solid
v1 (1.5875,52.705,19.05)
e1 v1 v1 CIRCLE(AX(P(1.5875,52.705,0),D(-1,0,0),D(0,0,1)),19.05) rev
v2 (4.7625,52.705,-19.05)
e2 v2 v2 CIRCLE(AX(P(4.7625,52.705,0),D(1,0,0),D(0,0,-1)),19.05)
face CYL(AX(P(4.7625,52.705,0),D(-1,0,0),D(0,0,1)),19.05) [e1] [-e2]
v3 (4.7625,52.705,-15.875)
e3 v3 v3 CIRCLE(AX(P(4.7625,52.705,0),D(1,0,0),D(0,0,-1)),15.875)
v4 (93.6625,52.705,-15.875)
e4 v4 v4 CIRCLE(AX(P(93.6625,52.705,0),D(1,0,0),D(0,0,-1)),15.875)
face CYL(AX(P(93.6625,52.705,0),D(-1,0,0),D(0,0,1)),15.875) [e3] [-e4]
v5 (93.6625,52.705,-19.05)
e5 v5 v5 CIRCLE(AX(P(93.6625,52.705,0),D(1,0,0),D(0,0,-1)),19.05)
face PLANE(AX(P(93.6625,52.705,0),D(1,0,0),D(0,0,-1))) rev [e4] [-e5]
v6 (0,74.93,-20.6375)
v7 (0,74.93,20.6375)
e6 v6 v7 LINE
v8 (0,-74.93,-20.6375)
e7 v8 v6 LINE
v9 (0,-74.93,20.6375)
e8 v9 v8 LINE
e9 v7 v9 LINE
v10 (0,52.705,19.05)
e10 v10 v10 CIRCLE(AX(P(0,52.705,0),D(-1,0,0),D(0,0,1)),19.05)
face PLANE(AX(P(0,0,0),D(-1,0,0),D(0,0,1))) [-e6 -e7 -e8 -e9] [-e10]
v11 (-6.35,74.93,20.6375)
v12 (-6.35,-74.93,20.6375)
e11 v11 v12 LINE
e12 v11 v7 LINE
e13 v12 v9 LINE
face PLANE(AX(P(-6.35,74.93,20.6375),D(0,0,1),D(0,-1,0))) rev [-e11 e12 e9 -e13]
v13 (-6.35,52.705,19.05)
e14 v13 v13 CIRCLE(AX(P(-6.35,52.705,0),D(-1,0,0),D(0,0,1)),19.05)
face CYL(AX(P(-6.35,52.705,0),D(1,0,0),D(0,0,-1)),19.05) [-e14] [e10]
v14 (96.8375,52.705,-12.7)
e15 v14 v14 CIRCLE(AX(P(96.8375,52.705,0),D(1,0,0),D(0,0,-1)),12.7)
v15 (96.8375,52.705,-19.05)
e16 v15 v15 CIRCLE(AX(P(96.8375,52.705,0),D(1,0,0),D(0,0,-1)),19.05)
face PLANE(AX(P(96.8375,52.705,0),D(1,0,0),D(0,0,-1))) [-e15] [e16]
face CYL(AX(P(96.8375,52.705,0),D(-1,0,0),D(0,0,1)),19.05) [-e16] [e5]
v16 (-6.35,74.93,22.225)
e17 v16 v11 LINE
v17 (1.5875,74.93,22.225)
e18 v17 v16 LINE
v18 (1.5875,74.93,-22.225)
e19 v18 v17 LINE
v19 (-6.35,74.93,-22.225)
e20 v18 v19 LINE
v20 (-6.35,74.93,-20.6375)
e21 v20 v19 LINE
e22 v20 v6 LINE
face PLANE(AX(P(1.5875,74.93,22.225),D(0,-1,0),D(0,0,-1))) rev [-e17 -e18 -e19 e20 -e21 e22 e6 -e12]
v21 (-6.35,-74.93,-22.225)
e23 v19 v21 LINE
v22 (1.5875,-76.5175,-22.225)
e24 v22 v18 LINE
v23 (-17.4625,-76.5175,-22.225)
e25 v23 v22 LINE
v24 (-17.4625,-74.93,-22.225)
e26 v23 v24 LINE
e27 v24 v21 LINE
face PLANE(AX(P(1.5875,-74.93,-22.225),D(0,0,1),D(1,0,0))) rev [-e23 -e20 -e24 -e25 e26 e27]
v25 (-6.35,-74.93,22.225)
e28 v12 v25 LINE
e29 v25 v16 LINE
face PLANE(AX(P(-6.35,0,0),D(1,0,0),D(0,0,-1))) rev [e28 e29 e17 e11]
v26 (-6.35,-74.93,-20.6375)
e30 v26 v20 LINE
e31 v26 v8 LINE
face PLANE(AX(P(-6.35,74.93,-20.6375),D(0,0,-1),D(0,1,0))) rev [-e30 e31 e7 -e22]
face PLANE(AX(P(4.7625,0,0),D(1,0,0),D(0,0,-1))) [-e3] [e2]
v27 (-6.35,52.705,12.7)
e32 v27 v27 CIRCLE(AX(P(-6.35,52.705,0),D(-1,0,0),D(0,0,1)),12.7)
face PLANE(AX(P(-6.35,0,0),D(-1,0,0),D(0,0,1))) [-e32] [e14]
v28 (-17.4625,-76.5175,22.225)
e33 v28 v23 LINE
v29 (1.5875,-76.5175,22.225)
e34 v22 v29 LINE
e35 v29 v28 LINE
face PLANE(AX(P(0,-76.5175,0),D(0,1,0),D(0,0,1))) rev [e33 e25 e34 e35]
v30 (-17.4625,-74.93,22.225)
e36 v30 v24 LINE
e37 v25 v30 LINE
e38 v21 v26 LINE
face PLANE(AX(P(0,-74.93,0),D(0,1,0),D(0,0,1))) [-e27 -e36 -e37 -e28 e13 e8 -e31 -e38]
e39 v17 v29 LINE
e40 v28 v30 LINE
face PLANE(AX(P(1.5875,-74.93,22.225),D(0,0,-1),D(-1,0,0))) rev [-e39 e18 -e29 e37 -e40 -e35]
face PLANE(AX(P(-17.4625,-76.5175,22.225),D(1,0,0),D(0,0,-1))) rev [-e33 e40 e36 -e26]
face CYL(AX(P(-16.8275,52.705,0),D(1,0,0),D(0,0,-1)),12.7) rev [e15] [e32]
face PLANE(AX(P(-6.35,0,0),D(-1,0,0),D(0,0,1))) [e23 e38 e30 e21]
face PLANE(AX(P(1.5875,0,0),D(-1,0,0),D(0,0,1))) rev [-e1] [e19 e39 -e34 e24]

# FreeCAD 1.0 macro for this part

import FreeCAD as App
import Part
import Sketcher

V = App.Vector
Q = App.Units.Quantity

doc = App.newDocument("Part")
params = doc.addObject("Spreadsheet::Sheet", "Params")
for row, (alias, value) in enumerate([
    ("sketch1_width", "5.9 in"),
    ("sketch1_height", "1.75 in"),
    ("pad1_length", "0.0625 in"),
    ("sketch2_width", "5.9 in"),
    ("sketch2_height", "0.0625 in"),
    ("pad2_length", "0.25 in"),
    ("sketch3_width", "0.75 in"),
    ("sketch3_height", "1.75 in"),
    ("pad3_length", "0.0625 in"),
    ("sketch4_diameter", "1.5 in"),
    ("pad4_length", "0.125 in"),
    ("sketch5_diameter", "1.25 in"),
    ("pad5_length", "3.5 in"),
    ("sketch6_diameter", "1.5 in"),
    ("pad6_length", "0.125 in"),
    ("sketch7_diameter", "1.5 in"),
    ("pad7_length", "0.25 in"),
    ("sketch8_diameter", "1 in"),
    ("pocket1_length", "4.475 in"),
], start=1):
    params.set(f"A{row}", alias)
    params.set(f"B{row}", "=" + value)
    params.setAlias(f"B{row}", alias)

body = doc.addObject("PartDesign::Body", "Body")

sketch1 = body.newObject("Sketcher::SketchObject", "Sketch")
sketch1.AttachmentSupport = (doc.getObject("YZ_Plane"), [""])
sketch1.MapMode = "FlatFace"
sketch1.addGeometry(Part.LineSegment(V(75, 22, 0), V(-75, 22, 0)), False)
sketch1.addGeometry(Part.LineSegment(V(-75, 22, 0), V(-75, -22, 0)), False)
sketch1.addGeometry(Part.LineSegment(V(-75, -22, 0), V(75, -22, 0)), False)
sketch1.addGeometry(Part.LineSegment(V(75, -22, 0), V(75, 22, 0)), False)
sketch1.addConstraint(Sketcher.Constraint("Coincident", 0, 2, 1, 1))
sketch1.addConstraint(Sketcher.Constraint("Coincident", 1, 2, 2, 1))
sketch1.addConstraint(Sketcher.Constraint("Coincident", 2, 2, 3, 1))
sketch1.addConstraint(Sketcher.Constraint("Coincident", 3, 2, 0, 1))
sketch1.addConstraint(Sketcher.Constraint("Horizontal", 0))
sketch1.addConstraint(Sketcher.Constraint("Vertical", 1))
sketch1.addConstraint(Sketcher.Constraint("Horizontal", 2))
sketch1.addConstraint(Sketcher.Constraint("Vertical", 3))
sketch1.addConstraint(Sketcher.Constraint("Symmetric", 0, 2, 2, 2, -1, 1))
sketch1.addConstraint(Sketcher.Constraint("DistanceX", 0, 2, 0, 1, Q("5.9 in")))
sketch1.addConstraint(Sketcher.Constraint("DistanceY", 1, 2, 1, 1, Q("1.75 in")))
sketch1.setExpression("Constraints[9]", "Params.sketch1_width")
sketch1.setExpression("Constraints[10]", "Params.sketch1_height")
pad1 = body.newObject("PartDesign::Pad", "Pad")
pad1.Profile = sketch1
pad1.setExpression("Length", "Params.pad1_length")

sketch2 = body.newObject("Sketcher::SketchObject", "Sketch001")
sketch2.AttachmentSupport = (doc.getObject("YZ_Plane"), [""])
sketch2.MapMode = "FlatFace"
sketch2.addGeometry(Part.LineSegment(V(74.9, 20.6, 0), V(-74.9, 20.6, 0)), False)
sketch2.addGeometry(Part.LineSegment(V(-74.9, 20.6, 0), V(-74.9, 22.2, 0)), False)
sketch2.addGeometry(Part.LineSegment(V(-74.9, 22.2, 0), V(74.9, 22.2, 0)), False)
sketch2.addGeometry(Part.LineSegment(V(74.9, 22.2, 0), V(74.9, 20.6, 0)), False)
sketch2.addGeometry(Part.LineSegment(V(74.9, -22.2, 0), V(-74.9, -22.2, 0)), False)
sketch2.addGeometry(Part.LineSegment(V(-74.9, -22.2, 0), V(-74.9, -20.6, 0)), False)
sketch2.addGeometry(Part.LineSegment(V(-74.9, -20.6, 0), V(74.9, -20.6, 0)), False)
sketch2.addGeometry(Part.LineSegment(V(74.9, -20.6, 0), V(74.9, -22.2, 0)), False)
sketch2.addConstraint(Sketcher.Constraint("Coincident", 0, 2, 1, 1))
sketch2.addConstraint(Sketcher.Constraint("Coincident", 1, 2, 2, 1))
sketch2.addConstraint(Sketcher.Constraint("Coincident", 2, 2, 3, 1))
sketch2.addConstraint(Sketcher.Constraint("Coincident", 3, 2, 0, 1))
sketch2.addConstraint(Sketcher.Constraint("Coincident", 4, 2, 5, 1))
sketch2.addConstraint(Sketcher.Constraint("Coincident", 5, 2, 6, 1))
sketch2.addConstraint(Sketcher.Constraint("Coincident", 6, 2, 7, 1))
sketch2.addConstraint(Sketcher.Constraint("Coincident", 7, 2, 4, 1))
sketch2.addConstraint(Sketcher.Constraint("Horizontal", 0))
sketch2.addConstraint(Sketcher.Constraint("Vertical", 1))
sketch2.addConstraint(Sketcher.Constraint("Horizontal", 2))
sketch2.addConstraint(Sketcher.Constraint("Vertical", 3))
sketch2.addConstraint(Sketcher.Constraint("Horizontal", 4))
sketch2.addConstraint(Sketcher.Constraint("Vertical", 5))
sketch2.addConstraint(Sketcher.Constraint("Horizontal", 6))
sketch2.addConstraint(Sketcher.Constraint("Vertical", 7))
sketch2.addConstraint(Sketcher.Constraint("Symmetric", 2, 2, 4, 2, -1, 1))
sketch2.addConstraint(Sketcher.Constraint("Symmetric", 0, 2, 6, 2, -1, 1))
sketch2.addConstraint(Sketcher.Constraint("Vertical", 1, 2, 4, 2))
sketch2.addConstraint(Sketcher.Constraint("DistanceX", 0, 2, 0, 1, Q("5.9 in")))
sketch2.addConstraint(Sketcher.Constraint("DistanceY", 1, 1, 1, 2, Q("0.0625 in")))
sketch2.addConstraint(Sketcher.Constraint("DistanceY", 4, 2, 1, 2, Q("1.75 in")))
sketch2.setExpression("Constraints[19]", "Params.sketch2_width")
sketch2.setExpression("Constraints[20]", "Params.sketch2_height")
pad2 = body.newObject("PartDesign::Pad", "Pad001")
pad2.Profile = sketch2
pad2.setExpression("Length", "Params.pad2_length")
pad2.Reversed = True

sketch3 = body.newObject("Sketcher::SketchObject", "Sketch002")
sketch3.AttachmentSupport = (doc.getObject("XZ_Plane"), [""])
sketch3.MapMode = "FlatFace"
sketch3.AttachmentOffset = App.Placement(V(0, 0, 2.95 * 25.4), App.Rotation())
sketch3.addGeometry(Part.LineSegment(V(-17, 22, 0), V(-17, -22, 0)), False)
sketch3.addGeometry(Part.LineSegment(V(-17, -22, 0), V(2, -22, 0)), False)
sketch3.addGeometry(Part.LineSegment(V(2, -22, 0), V(2, 22, 0)), False)
sketch3.addGeometry(Part.LineSegment(V(2, 22, 0), V(-17, 22, 0)), False)
sketch3.addConstraint(Sketcher.Constraint("Coincident", 0, 2, 1, 1))
sketch3.addConstraint(Sketcher.Constraint("Coincident", 1, 2, 2, 1))
sketch3.addConstraint(Sketcher.Constraint("Coincident", 2, 2, 3, 1))
sketch3.addConstraint(Sketcher.Constraint("Coincident", 3, 2, 0, 1))
sketch3.addConstraint(Sketcher.Constraint("Vertical", 0))
sketch3.addConstraint(Sketcher.Constraint("Horizontal", 1))
sketch3.addConstraint(Sketcher.Constraint("Vertical", 2))
sketch3.addConstraint(Sketcher.Constraint("Horizontal", 3))
sketch3.addConstraint(Sketcher.Constraint("DistanceX", 1, 1, 1, 2, Q("0.75 in")))
sketch3.addConstraint(Sketcher.Constraint("DistanceY", 0, 2, 0, 1, Q("1.75 in")))
sketch3.addConstraint(Sketcher.Constraint("DistanceX", 0, 2, -1, 1, Q("0.6875 in")))
sketch3.addConstraint(Sketcher.Constraint("DistanceY", 0, 2, -1, 1, Q("0.875 in")))
sketch3.setExpression("Constraints[8]", "Params.sketch3_width")
sketch3.setExpression("Constraints[9]", "Params.sketch3_height")
pad3 = body.newObject("PartDesign::Pad", "Pad002")
pad3.Profile = sketch3
pad3.setExpression("Length", "Params.pad3_length")

sketch4 = body.newObject("Sketcher::SketchObject", "Sketch003")
sketch4.AttachmentSupport = (doc.getObject("YZ_Plane"), [""])
sketch4.MapMode = "FlatFace"
sketch4.AttachmentOffset = App.Placement(V(0, 0, 0.0625 * 25.4), App.Rotation())
sketch4.addGeometry(Part.Circle(V(53, 0, 0), V(0, 0, 1), 19), False)
sketch4.addConstraint(Sketcher.Constraint("PointOnObject", 0, 3, -1))
sketch4.addConstraint(Sketcher.Constraint("Diameter", 0, Q("1.5 in")))
sketch4.addConstraint(Sketcher.Constraint("DistanceX", -1, 1, 0, 3, Q("2.075 in")))
sketch4.setExpression("Constraints[1]", "Params.sketch4_diameter")
pad4 = body.newObject("PartDesign::Pad", "Pad003")
pad4.Profile = sketch4
pad4.setExpression("Length", "Params.pad4_length")

sketch5 = body.newObject("Sketcher::SketchObject", "Sketch004")
sketch5.AttachmentSupport = (doc.getObject("YZ_Plane"), [""])
sketch5.MapMode = "FlatFace"
sketch5.AttachmentOffset = App.Placement(V(0, 0, 0.1875 * 25.4), App.Rotation())
sketch5.addGeometry(Part.Circle(V(53, 0, 0), V(0, 0, 1), 16), False)
sketch5.addConstraint(Sketcher.Constraint("PointOnObject", 0, 3, -1))
sketch5.addConstraint(Sketcher.Constraint("Diameter", 0, Q("1.25 in")))
sketch5.addConstraint(Sketcher.Constraint("DistanceX", -1, 1, 0, 3, Q("2.075 in")))
sketch5.setExpression("Constraints[1]", "Params.sketch5_diameter")
pad5 = body.newObject("PartDesign::Pad", "Pad004")
pad5.Profile = sketch5
pad5.setExpression("Length", "Params.pad5_length")

sketch6 = body.newObject("Sketcher::SketchObject", "Sketch005")
sketch6.AttachmentSupport = (doc.getObject("YZ_Plane"), [""])
sketch6.MapMode = "FlatFace"
sketch6.AttachmentOffset = App.Placement(V(0, 0, 3.6875 * 25.4), App.Rotation())
sketch6.addGeometry(Part.Circle(V(53, 0, 0), V(0, 0, 1), 19), False)
sketch6.addConstraint(Sketcher.Constraint("PointOnObject", 0, 3, -1))
sketch6.addConstraint(Sketcher.Constraint("Diameter", 0, Q("1.5 in")))
sketch6.addConstraint(Sketcher.Constraint("DistanceX", -1, 1, 0, 3, Q("2.075 in")))
sketch6.setExpression("Constraints[1]", "Params.sketch6_diameter")
pad6 = body.newObject("PartDesign::Pad", "Pad005")
pad6.Profile = sketch6
pad6.setExpression("Length", "Params.pad6_length")

sketch7 = body.newObject("Sketcher::SketchObject", "Sketch006")
sketch7.AttachmentSupport = (doc.getObject("YZ_Plane"), [""])
sketch7.MapMode = "FlatFace"
sketch7.AttachmentOffset = App.Placement(V(0, 0, -0.25 * 25.4), App.Rotation())
sketch7.addGeometry(Part.Circle(V(53, 0, 0), V(0, 0, 1), 19), False)
sketch7.addConstraint(Sketcher.Constraint("PointOnObject", 0, 3, -1))
sketch7.addConstraint(Sketcher.Constraint("Diameter", 0, Q("1.5 in")))
sketch7.addConstraint(Sketcher.Constraint("DistanceX", -1, 1, 0, 3, Q("2.075 in")))
sketch7.setExpression("Constraints[1]", "Params.sketch7_diameter")
pad7 = body.newObject("PartDesign::Pad", "Pad006")
pad7.Profile = sketch7
pad7.setExpression("Length", "Params.pad7_length")

sketch8 = body.newObject("Sketcher::SketchObject", "Sketch007")
sketch8.AttachmentSupport = (doc.getObject("YZ_Plane"), [""])
sketch8.MapMode = "FlatFace"
sketch8.AttachmentOffset = App.Placement(V(0, 0, 3.8125 * 25.4), App.Rotation())
sketch8.addGeometry(Part.Circle(V(53, 0, 0), V(0, 0, 1), 13), False)
sketch8.addConstraint(Sketcher.Constraint("PointOnObject", 0, 3, -1))
sketch8.addConstraint(Sketcher.Constraint("Diameter", 0, Q("1 in")))
sketch8.addConstraint(Sketcher.Constraint("DistanceX", -1, 1, 0, 3, Q("2.075 in")))
sketch8.setExpression("Constraints[1]", "Params.sketch8_diameter")
pocket1 = body.newObject("PartDesign::Pocket", "Pocket")
pocket1.Profile = sketch8
pocket1.setExpression("Length", "Params.pocket1_length")

doc.recompute()
